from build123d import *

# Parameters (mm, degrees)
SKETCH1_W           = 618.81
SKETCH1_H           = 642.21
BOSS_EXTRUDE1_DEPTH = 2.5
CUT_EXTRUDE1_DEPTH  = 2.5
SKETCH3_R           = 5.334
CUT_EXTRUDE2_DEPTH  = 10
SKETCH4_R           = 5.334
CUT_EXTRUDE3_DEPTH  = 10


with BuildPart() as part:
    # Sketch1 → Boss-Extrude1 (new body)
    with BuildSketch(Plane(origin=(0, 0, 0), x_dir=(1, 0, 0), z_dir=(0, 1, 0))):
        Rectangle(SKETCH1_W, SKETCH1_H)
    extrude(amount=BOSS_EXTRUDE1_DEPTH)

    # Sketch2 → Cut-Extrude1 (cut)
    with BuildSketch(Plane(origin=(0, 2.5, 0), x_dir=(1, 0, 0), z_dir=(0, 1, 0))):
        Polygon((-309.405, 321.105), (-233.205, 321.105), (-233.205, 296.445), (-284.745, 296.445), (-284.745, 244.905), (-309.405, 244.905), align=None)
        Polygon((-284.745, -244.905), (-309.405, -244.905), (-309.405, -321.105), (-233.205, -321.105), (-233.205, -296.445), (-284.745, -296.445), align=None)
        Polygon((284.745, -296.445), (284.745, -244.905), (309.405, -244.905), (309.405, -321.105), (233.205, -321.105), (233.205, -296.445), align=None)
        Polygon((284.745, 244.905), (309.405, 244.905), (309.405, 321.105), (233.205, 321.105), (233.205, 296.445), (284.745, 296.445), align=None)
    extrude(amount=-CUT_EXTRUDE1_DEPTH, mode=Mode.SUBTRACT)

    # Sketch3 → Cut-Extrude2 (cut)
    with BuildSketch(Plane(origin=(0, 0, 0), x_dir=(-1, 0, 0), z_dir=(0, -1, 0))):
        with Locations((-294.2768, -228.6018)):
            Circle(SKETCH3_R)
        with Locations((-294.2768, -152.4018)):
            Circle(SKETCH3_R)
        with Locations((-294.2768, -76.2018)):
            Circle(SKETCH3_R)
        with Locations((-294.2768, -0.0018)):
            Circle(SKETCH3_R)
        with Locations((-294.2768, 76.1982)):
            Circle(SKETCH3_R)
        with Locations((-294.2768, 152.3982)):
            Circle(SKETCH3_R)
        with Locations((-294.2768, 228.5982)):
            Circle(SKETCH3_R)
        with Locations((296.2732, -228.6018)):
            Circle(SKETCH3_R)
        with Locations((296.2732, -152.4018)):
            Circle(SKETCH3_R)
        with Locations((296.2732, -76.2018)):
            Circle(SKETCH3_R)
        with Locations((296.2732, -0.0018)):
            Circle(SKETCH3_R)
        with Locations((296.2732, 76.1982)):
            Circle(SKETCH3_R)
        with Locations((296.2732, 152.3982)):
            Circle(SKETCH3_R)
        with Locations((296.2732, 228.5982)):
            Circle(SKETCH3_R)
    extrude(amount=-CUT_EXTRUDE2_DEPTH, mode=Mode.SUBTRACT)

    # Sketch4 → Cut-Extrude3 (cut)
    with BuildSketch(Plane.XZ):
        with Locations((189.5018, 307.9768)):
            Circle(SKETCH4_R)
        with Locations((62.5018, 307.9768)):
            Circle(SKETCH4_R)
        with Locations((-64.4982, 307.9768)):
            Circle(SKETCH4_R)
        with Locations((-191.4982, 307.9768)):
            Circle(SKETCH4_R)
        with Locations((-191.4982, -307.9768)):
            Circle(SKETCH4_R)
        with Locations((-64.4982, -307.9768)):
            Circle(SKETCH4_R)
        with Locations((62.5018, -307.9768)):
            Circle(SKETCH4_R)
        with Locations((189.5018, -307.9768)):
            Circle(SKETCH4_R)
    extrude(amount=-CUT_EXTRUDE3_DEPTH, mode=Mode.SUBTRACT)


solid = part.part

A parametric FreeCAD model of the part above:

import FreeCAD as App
import Part
import Sketcher
Q = App.Units.Quantity

doc = App.newDocument("Part")
body = doc.addObject("PartDesign::Body", "Body")

sketch1 = body.newObject("Sketcher::SketchObject", "Sketch")
sketch1.AttachmentSupport = (doc.getObject("XZ_Plane"), [""])
sketch1.MapMode = "FlatFace"
sketch1.addGeometry(Part.LineSegment(App.Vector(-309, -321, 0), App.Vector(-309, 321, 0)), False)
sketch1.addGeometry(Part.LineSegment(App.Vector(-309, 321, 0), App.Vector(309, 321, 0)), False)
sketch1.addGeometry(Part.LineSegment(App.Vector(309, 321, 0), App.Vector(309, -321, 0)), False)
sketch1.addGeometry(Part.LineSegment(App.Vector(309, -321, 0), App.Vector(-309, -321, 0)), False)
sketch1.addConstraint(Sketcher.Constraint("Coincident", 0, 2, 1, 1))
sketch1.addConstraint(Sketcher.Constraint("Coincident", 1, 2, 2, 1))
sketch1.addConstraint(Sketcher.Constraint("Coincident", 2, 2, 3, 1))
sketch1.addConstraint(Sketcher.Constraint("Coincident", 3, 2, 0, 1))
sketch1.addConstraint(Sketcher.Constraint("Vertical", 0))
sketch1.addConstraint(Sketcher.Constraint("Horizontal", 1))
sketch1.addConstraint(Sketcher.Constraint("Vertical", 2))
sketch1.addConstraint(Sketcher.Constraint("Horizontal", 3))
sketch1.addConstraint(Sketcher.Constraint("Symmetric", 0, 2, 2, 2, -1, 1))
sketch1.addConstraint(Sketcher.Constraint("DistanceX", 1, 1, 1, 2, Q("618.81 mm")))
sketch1.addConstraint(Sketcher.Constraint("DistanceY", 0, 1, 0, 2, Q("642.21 mm")))
pad1 = body.newObject("PartDesign::Pad", "Pad")
pad1.Profile = sketch1
pad1.Length = 2.5
pad1.Reversed = True

sketch2 = body.newObject("Sketcher::SketchObject", "Sketch001")
sketch2.AttachmentSupport = (doc.getObject("XZ_Plane"), [""])
sketch2.MapMode = "FlatFace"
sketch2.AttachmentOffset = App.Placement(App.Vector(0, 0, -2.5), App.Rotation())
sketch2.addGeometry(Part.LineSegment(App.Vector(-233, -321, 0), App.Vector(-309, -321, 0)), False)
sketch2.addGeometry(Part.LineSegment(App.Vector(-309, -321, 0), App.Vector(-309, -245, 0)), False)
sketch2.addGeometry(Part.LineSegment(App.Vector(-309, -245, 0), App.Vector(-285, -245, 0)), False)
sketch2.addGeometry(Part.LineSegment(App.Vector(-285, -245, 0), App.Vector(-285, -296, 0)), False)
sketch2.addGeometry(Part.LineSegment(App.Vector(-285, -296, 0), App.Vector(-233, -296, 0)), False)
sketch2.addGeometry(Part.LineSegment(App.Vector(-233, -296, 0), App.Vector(-233, -321, 0)), False)
sketch2.addGeometry(Part.LineSegment(App.Vector(-285, 245, 0), App.Vector(-309, 245, 0)), False)
sketch2.addGeometry(Part.LineSegment(App.Vector(-309, 245, 0), App.Vector(-309, 321, 0)), False)
sketch2.addGeometry(Part.LineSegment(App.Vector(-309, 321, 0), App.Vector(-233, 321, 0)), False)
sketch2.addGeometry(Part.LineSegment(App.Vector(-233, 321, 0), App.Vector(-233, 296, 0)), False)
sketch2.addGeometry(Part.LineSegment(App.Vector(-233, 296, 0), App.Vector(-285, 296, 0)), False)
sketch2.addGeometry(Part.LineSegment(App.Vector(-285, 296, 0), App.Vector(-285, 245, 0)), False)
sketch2.addGeometry(Part.LineSegment(App.Vector(285, 245, 0), App.Vector(285, 296, 0)), False)
sketch2.addGeometry(Part.LineSegment(App.Vector(285, 296, 0), App.Vector(233, 296, 0)), False)
sketch2.addGeometry(Part.LineSegment(App.Vector(233, 296, 0), App.Vector(233, 321, 0)), False)
sketch2.addGeometry(Part.LineSegment(App.Vector(233, 321, 0), App.Vector(309, 321, 0)), False)
sketch2.addGeometry(Part.LineSegment(App.Vector(309, 321, 0), App.Vector(309, 245, 0)), False)
sketch2.addGeometry(Part.LineSegment(App.Vector(309, 245, 0), App.Vector(285, 245, 0)), False)
sketch2.addGeometry(Part.LineSegment(App.Vector(285, -245, 0), App.Vector(309, -245, 0)), False)
sketch2.addGeometry(Part.LineSegment(App.Vector(309, -245, 0), App.Vector(309, -321, 0)), False)
sketch2.addGeometry(Part.LineSegment(App.Vector(309, -321, 0), App.Vector(233, -321, 0)), False)
sketch2.addGeometry(Part.LineSegment(App.Vector(233, -321, 0), App.Vector(233, -296, 0)), False)
sketch2.addGeometry(Part.LineSegment(App.Vector(233, -296, 0), App.Vector(285, -296, 0)), False)
sketch2.addGeometry(Part.LineSegment(App.Vector(285, -296, 0), App.Vector(285, -245, 0)), False)
sketch2.addConstraint(Sketcher.Constraint("Coincident", 0, 2, 1, 1))
sketch2.addConstraint(Sketcher.Constraint("Coincident", 1, 2, 2, 1))
sketch2.addConstraint(Sketcher.Constraint("Coincident", 2, 2, 3, 1))
sketch2.addConstraint(Sketcher.Constraint("Coincident", 3, 2, 4, 1))
sketch2.addConstraint(Sketcher.Constraint("Coincident", 4, 2, 5, 1))
sketch2.addConstraint(Sketcher.Constraint("Coincident", 5, 2, 0, 1))
sketch2.addConstraint(Sketcher.Constraint("Coincident", 6, 2, 7, 1))
sketch2.addConstraint(Sketcher.Constraint("Coincident", 7, 2, 8, 1))
sketch2.addConstraint(Sketcher.Constraint("Coincident", 8, 2, 9, 1))
sketch2.addConstraint(Sketcher.Constraint("Coincident", 9, 2, 10, 1))
sketch2.addConstraint(Sketcher.Constraint("Coincident", 10, 2, 11, 1))
sketch2.addConstraint(Sketcher.Constraint("Coincident", 11, 2, 6, 1))
sketch2.addConstraint(Sketcher.Constraint("Coincident", 12, 2, 13, 1))
sketch2.addConstraint(Sketcher.Constraint("Coincident", 13, 2, 14, 1))
sketch2.addConstraint(Sketcher.Constraint("Coincident", 14, 2, 15, 1))
sketch2.addConstraint(Sketcher.Constraint("Coincident", 15, 2, 16, 1))
sketch2.addConstraint(Sketcher.Constraint("Coincident", 16, 2, 17, 1))
sketch2.addConstraint(Sketcher.Constraint("Coincident", 17, 2, 12, 1))
sketch2.addConstraint(Sketcher.Constraint("Coincident", 18, 2, 19, 1))
sketch2.addConstraint(Sketcher.Constraint("Coincident", 19, 2, 20, 1))
sketch2.addConstraint(Sketcher.Constraint("Coincident", 20, 2, 21, 1))
sketch2.addConstraint(Sketcher.Constraint("Coincident", 21, 2, 22, 1))
sketch2.addConstraint(Sketcher.Constraint("Coincident", 22, 2, 23, 1))
sketch2.addConstraint(Sketcher.Constraint("Coincident", 23, 2, 18, 1))
sketch2.addConstraint(Sketcher.Constraint("Horizontal", 0))
sketch2.addConstraint(Sketcher.Constraint("Vertical", 1))
sketch2.addConstraint(Sketcher.Constraint("Horizontal", 2))
sketch2.addConstraint(Sketcher.Constraint("Vertical", 3))
sketch2.addConstraint(Sketcher.Constraint("Horizontal", 4))
sketch2.addConstraint(Sketcher.Constraint("Vertical", 5))
sketch2.addConstraint(Sketcher.Constraint("Horizontal", 6))
sketch2.addConstraint(Sketcher.Constraint("Vertical", 7))
sketch2.addConstraint(Sketcher.Constraint("Horizontal", 8))
sketch2.addConstraint(Sketcher.Constraint("Vertical", 9))
sketch2.addConstraint(Sketcher.Constraint("Horizontal", 10))
sketch2.addConstraint(Sketcher.Constraint("Vertical", 11))
sketch2.addConstraint(Sketcher.Constraint("Vertical", 12))
sketch2.addConstraint(Sketcher.Constraint("Horizontal", 13))
sketch2.addConstraint(Sketcher.Constraint("Vertical", 14))
sketch2.addConstraint(Sketcher.Constraint("Horizontal", 15))
sketch2.addConstraint(Sketcher.Constraint("Vertical", 16))
sketch2.addConstraint(Sketcher.Constraint("Horizontal", 17))
sketch2.addConstraint(Sketcher.Constraint("Horizontal", 18))
sketch2.addConstraint(Sketcher.Constraint("Vertical", 19))
sketch2.addConstraint(Sketcher.Constraint("Horizontal", 20))
sketch2.addConstraint(Sketcher.Constraint("Vertical", 21))
sketch2.addConstraint(Sketcher.Constraint("Horizontal", 22))
sketch2.addConstraint(Sketcher.Constraint("Vertical", 23))
sketch2.addConstraint(Sketcher.Constraint("Symmetric", 3, 2, 12, 2, -1, 1))
sketch2.addConstraint(Sketcher.Constraint("Symmetric", 5, 2, 14, 2, -1, 1))
sketch2.addConstraint(Sketcher.Constraint("Symmetric", 1, 2, 16, 2, -1, 1))
sketch2.addConstraint(Sketcher.Constraint("Symmetric", 6, 2, 18, 2, -1, 1))
sketch2.addConstraint(Sketcher.Constraint("Symmetric", 8, 2, 20, 2, -1, 1))
sketch2.addConstraint(Sketcher.Constraint("Symmetric", 10, 2, 22, 2, -1, 1))
sketch2.addConstraint(Sketcher.Constraint("Symmetric", 10, 2, 12, 2, -2))
sketch2.addConstraint(Sketcher.Constraint("Symmetric", 8, 2, 14, 2, -2))
sketch2.addConstraint(Sketcher.Constraint("Symmetric", 6, 2, 16, 2, -2))
sketch2.addConstraint(Sketcher.Constraint("Equal", 20, 1))
sketch2.addConstraint(Sketcher.Constraint("Equal", 22, 3))
sketch2.addConstraint(Sketcher.Constraint("DistanceX", 0, 2, 0, 1, Q("76.2 mm")))
sketch2.addConstraint(Sketcher.Constraint("DistanceX", 2, 1, 2, 2, Q("24.66 mm")))
sketch2.addConstraint(Sketcher.Constraint("DistanceY", 1, 2, 6, 2, Q("489.81 mm")))
sketch2.addConstraint(Sketcher.Constraint("DistanceX", 9, 2, 12, 2, Q("517.95 mm")))
pocket1 = body.newObject("PartDesign::Pocket", "Pocket")
pocket1.Profile = sketch2
pocket1.Length = 2.5
pocket1.Reversed = True

sketch3 = body.newObject("Sketcher::SketchObject", "Sketch002")
sketch3.AttachmentSupport = (doc.getObject("XZ_Plane"), [""])
sketch3.MapMode = "FlatFace"
sketch3.addGeometry(Part.Circle(App.Vector(294, 229, 0), App.Vector(0, 0, 1), 5), False)
sketch3.addGeometry(Part.Circle(App.Vector(294, 152, 0), App.Vector(0, 0, 1), 5), False)
sketch3.addGeometry(Part.Circle(App.Vector(294, 76, 0), App.Vector(0, 0, 1), 5), False)
sketch3.addGeometry(Part.Circle(App.Vector(294, 0, 0), App.Vector(0, 0, 1), 5), False)
sketch3.addGeometry(Part.Circle(App.Vector(294, -76, 0), App.Vector(0, 0, 1), 5), False)
sketch3.addGeometry(Part.Circle(App.Vector(294, -152, 0), App.Vector(0, 0, 1), 5), False)
sketch3.addGeometry(Part.Circle(App.Vector(294, -229, 0), App.Vector(0, 0, 1), 5), False)
sketch3.addGeometry(Part.Circle(App.Vector(-296, 229, 0), App.Vector(0, 0, 1), 5), False)
sketch3.addGeometry(Part.Circle(App.Vector(-296, 152, 0), App.Vector(0, 0, 1), 5), False)
sketch3.addGeometry(Part.Circle(App.Vector(-296, 76, 0), App.Vector(0, 0, 1), 5), False)
sketch3.addGeometry(Part.Circle(App.Vector(-296, 0, 0), App.Vector(0, 0, 1), 5), False)
sketch3.addGeometry(Part.Circle(App.Vector(-296, -76, 0), App.Vector(0, 0, 1), 5), False)
sketch3.addGeometry(Part.Circle(App.Vector(-296, -152, 0), App.Vector(0, 0, 1), 5), False)
sketch3.addGeometry(Part.Circle(App.Vector(-296, -229, 0), App.Vector(0, 0, 1), 5), False)
sketch3.addConstraint(Sketcher.Constraint("Equal", 0, 1))
sketch3.addConstraint(Sketcher.Constraint("Equal", 1, 2))
sketch3.addConstraint(Sketcher.Constraint("Equal", 2, 3))
sketch3.addConstraint(Sketcher.Constraint("Equal", 3, 4))
sketch3.addConstraint(Sketcher.Constraint("Equal", 4, 5))
sketch3.addConstraint(Sketcher.Constraint("Equal", 5, 6))
sketch3.addConstraint(Sketcher.Constraint("Equal", 6, 7))
sketch3.addConstraint(Sketcher.Constraint("Equal", 7, 8))
sketch3.addConstraint(Sketcher.Constraint("Equal", 8, 9))
sketch3.addConstraint(Sketcher.Constraint("Equal", 9, 10))
sketch3.addConstraint(Sketcher.Constraint("Equal", 10, 11))
sketch3.addConstraint(Sketcher.Constraint("Equal", 11, 12))
sketch3.addConstraint(Sketcher.Constraint("Equal", 12, 13))
sketch3.addConstraint(Sketcher.Constraint("Horizontal", 0, 3, 7, 3))
sketch3.addConstraint(Sketcher.Constraint("Horizontal", 1, 3, 8, 3))
sketch3.addConstraint(Sketcher.Constraint("Horizontal", 2, 3, 9, 3))
sketch3.addConstraint(Sketcher.Constraint("Horizontal", 3, 3, 10, 3))
sketch3.addConstraint(Sketcher.Constraint("Horizontal", 4, 3, 11, 3))
sketch3.addConstraint(Sketcher.Constraint("Horizontal", 5, 3, 12, 3))
sketch3.addConstraint(Sketcher.Constraint("Horizontal", 6, 3, 13, 3))
sketch3.addConstraint(Sketcher.Constraint("Vertical", 0, 3, 1, 3))
sketch3.addConstraint(Sketcher.Constraint("Vertical", 1, 3, 2, 3))
sketch3.addConstraint(Sketcher.Constraint("Vertical", 2, 3, 3, 3))
sketch3.addConstraint(Sketcher.Constraint("Vertical", 3, 3, 4, 3))
sketch3.addConstraint(Sketcher.Constraint("Vertical", 4, 3, 5, 3))
sketch3.addConstraint(Sketcher.Constraint("Vertical", 5, 3, 6, 3))
sketch3.addConstraint(Sketcher.Constraint("Vertical", 7, 3, 8, 3))
sketch3.addConstraint(Sketcher.Constraint("Vertical", 8, 3, 9, 3))
sketch3.addConstraint(Sketcher.Constraint("Vertical", 9, 3, 10, 3))
sketch3.addConstraint(Sketcher.Constraint("Vertical", 10, 3, 11, 3))
sketch3.addConstraint(Sketcher.Constraint("Vertical", 11, 3, 12, 3))
sketch3.addConstraint(Sketcher.Constraint("Vertical", 12, 3, 13, 3))
sketch3.addConstraint(Sketcher.Constraint("Diameter", 0, Q("10.668 mm")))
sketch3.addConstraint(Sketcher.Constraint("DistanceY", 5, 3, 0, 3, Q("381 mm")))
sketch3.addConstraint(Sketcher.Constraint("DistanceY", 6, 3, 1, 3, Q("381 mm")))
sketch3.addConstraint(Sketcher.Constraint("DistanceY", 1, 3, 0, 3, Q("76.2 mm")))
sketch3.addConstraint(Sketcher.Constraint("DistanceY", 2, 3, 1, 3, Q("76.2 mm")))
sketch3.addConstraint(Sketcher.Constraint("DistanceY", 3, 3, 2, 3, Q("76.2 mm")))
sketch3.addConstraint(Sketcher.Constraint("DistanceY", 4, 3, 3, 3, Q("76.2 mm")))
sketch3.addConstraint(Sketcher.Constraint("DistanceX", 7, 3, 0, 3, Q("590.55 mm")))
sketch3.addConstraint(Sketcher.Constraint("DistanceX", -1, 1, 0, 3, Q("294.2768 mm")))
sketch3.addConstraint(Sketcher.Constraint("DistanceY", -1, 1, 0, 3, Q("228.6018 mm")))
pocket2 = body.newObject("PartDesign::Pocket", "Pocket001")
pocket2.Profile = sketch3
pocket2.Length = 10

sketch4 = body.newObject("Sketcher::SketchObject", "Sketch003")
sketch4.AttachmentSupport = (doc.getObject("XZ_Plane"), [""])
sketch4.MapMode = "FlatFace"
sketch4.addGeometry(Part.Circle(App.Vector(190, 308, 0), App.Vector(0, 0, 1), 5), False)
sketch4.addGeometry(Part.Circle(App.Vector(63, 308, 0), App.Vector(0, 0, 1), 5), False)
sketch4.addGeometry(Part.Circle(App.Vector(-64, 308, 0), App.Vector(0, 0, 1), 5), False)
sketch4.addGeometry(Part.Circle(App.Vector(-191, 308, 0), App.Vector(0, 0, 1), 5), False)
sketch4.addGeometry(Part.Circle(App.Vector(-191, -308, 0), App.Vector(0, 0, 1), 5), False)
sketch4.addGeometry(Part.Circle(App.Vector(-64, -308, 0), App.Vector(0, 0, 1), 5), False)
sketch4.addGeometry(Part.Circle(App.Vector(63, -308, 0), App.Vector(0, 0, 1), 5), False)
sketch4.addGeometry(Part.Circle(App.Vector(190, -308, 0), App.Vector(0, 0, 1), 5), False)
sketch4.addConstraint(Sketcher.Constraint("Equal", 0, 1))
sketch4.addConstraint(Sketcher.Constraint("Equal", 1, 2))
sketch4.addConstraint(Sketcher.Constraint("Equal", 2, 3))
sketch4.addConstraint(Sketcher.Constraint("Equal", 3, 4))
sketch4.addConstraint(Sketcher.Constraint("Equal", 4, 5))
sketch4.addConstraint(Sketcher.Constraint("Equal", 5, 6))
sketch4.addConstraint(Sketcher.Constraint("Equal", 6, 7))
sketch4.addConstraint(Sketcher.Constraint("Symmetric", 3, 3, 4, 3, -1))
sketch4.addConstraint(Sketcher.Constraint("Symmetric", 2, 3, 5, 3, -1))
sketch4.addConstraint(Sketcher.Constraint("Symmetric", 1, 3, 6, 3, -1))
sketch4.addConstraint(Sketcher.Constraint("Symmetric", 0, 3, 7, 3, -1))
sketch4.addConstraint(Sketcher.Constraint("Horizontal", 0, 3, 1, 3))
sketch4.addConstraint(Sketcher.Constraint("Horizontal", 1, 3, 2, 3))
sketch4.addConstraint(Sketcher.Constraint("Horizontal", 2, 3, 3, 3))
sketch4.addConstraint(Sketcher.Constraint("Diameter", 0, Q("10.668 mm")))
sketch4.addConstraint(Sketcher.Constraint("DistanceX", 1, 3, 0, 3, Q("127 mm")))
sketch4.addConstraint(Sketcher.Constraint("DistanceX", 2, 3, 1, 3, Q("127 mm")))
sketch4.addConstraint(Sketcher.Constraint("DistanceX", 3, 3, 2, 3, Q("127 mm")))
sketch4.addConstraint(Sketcher.Constraint("DistanceX", -1, 1, 0, 3, Q("189.5018 mm")))
sketch4.addConstraint(Sketcher.Constraint("DistanceY", -1, 1, 0, 3, Q("307.9768 mm")))
pocket3 = body.newObject("PartDesign::Pocket", "Pocket002")
pocket3.Profile = sketch4
pocket3.Length = 10

doc.recompute()
